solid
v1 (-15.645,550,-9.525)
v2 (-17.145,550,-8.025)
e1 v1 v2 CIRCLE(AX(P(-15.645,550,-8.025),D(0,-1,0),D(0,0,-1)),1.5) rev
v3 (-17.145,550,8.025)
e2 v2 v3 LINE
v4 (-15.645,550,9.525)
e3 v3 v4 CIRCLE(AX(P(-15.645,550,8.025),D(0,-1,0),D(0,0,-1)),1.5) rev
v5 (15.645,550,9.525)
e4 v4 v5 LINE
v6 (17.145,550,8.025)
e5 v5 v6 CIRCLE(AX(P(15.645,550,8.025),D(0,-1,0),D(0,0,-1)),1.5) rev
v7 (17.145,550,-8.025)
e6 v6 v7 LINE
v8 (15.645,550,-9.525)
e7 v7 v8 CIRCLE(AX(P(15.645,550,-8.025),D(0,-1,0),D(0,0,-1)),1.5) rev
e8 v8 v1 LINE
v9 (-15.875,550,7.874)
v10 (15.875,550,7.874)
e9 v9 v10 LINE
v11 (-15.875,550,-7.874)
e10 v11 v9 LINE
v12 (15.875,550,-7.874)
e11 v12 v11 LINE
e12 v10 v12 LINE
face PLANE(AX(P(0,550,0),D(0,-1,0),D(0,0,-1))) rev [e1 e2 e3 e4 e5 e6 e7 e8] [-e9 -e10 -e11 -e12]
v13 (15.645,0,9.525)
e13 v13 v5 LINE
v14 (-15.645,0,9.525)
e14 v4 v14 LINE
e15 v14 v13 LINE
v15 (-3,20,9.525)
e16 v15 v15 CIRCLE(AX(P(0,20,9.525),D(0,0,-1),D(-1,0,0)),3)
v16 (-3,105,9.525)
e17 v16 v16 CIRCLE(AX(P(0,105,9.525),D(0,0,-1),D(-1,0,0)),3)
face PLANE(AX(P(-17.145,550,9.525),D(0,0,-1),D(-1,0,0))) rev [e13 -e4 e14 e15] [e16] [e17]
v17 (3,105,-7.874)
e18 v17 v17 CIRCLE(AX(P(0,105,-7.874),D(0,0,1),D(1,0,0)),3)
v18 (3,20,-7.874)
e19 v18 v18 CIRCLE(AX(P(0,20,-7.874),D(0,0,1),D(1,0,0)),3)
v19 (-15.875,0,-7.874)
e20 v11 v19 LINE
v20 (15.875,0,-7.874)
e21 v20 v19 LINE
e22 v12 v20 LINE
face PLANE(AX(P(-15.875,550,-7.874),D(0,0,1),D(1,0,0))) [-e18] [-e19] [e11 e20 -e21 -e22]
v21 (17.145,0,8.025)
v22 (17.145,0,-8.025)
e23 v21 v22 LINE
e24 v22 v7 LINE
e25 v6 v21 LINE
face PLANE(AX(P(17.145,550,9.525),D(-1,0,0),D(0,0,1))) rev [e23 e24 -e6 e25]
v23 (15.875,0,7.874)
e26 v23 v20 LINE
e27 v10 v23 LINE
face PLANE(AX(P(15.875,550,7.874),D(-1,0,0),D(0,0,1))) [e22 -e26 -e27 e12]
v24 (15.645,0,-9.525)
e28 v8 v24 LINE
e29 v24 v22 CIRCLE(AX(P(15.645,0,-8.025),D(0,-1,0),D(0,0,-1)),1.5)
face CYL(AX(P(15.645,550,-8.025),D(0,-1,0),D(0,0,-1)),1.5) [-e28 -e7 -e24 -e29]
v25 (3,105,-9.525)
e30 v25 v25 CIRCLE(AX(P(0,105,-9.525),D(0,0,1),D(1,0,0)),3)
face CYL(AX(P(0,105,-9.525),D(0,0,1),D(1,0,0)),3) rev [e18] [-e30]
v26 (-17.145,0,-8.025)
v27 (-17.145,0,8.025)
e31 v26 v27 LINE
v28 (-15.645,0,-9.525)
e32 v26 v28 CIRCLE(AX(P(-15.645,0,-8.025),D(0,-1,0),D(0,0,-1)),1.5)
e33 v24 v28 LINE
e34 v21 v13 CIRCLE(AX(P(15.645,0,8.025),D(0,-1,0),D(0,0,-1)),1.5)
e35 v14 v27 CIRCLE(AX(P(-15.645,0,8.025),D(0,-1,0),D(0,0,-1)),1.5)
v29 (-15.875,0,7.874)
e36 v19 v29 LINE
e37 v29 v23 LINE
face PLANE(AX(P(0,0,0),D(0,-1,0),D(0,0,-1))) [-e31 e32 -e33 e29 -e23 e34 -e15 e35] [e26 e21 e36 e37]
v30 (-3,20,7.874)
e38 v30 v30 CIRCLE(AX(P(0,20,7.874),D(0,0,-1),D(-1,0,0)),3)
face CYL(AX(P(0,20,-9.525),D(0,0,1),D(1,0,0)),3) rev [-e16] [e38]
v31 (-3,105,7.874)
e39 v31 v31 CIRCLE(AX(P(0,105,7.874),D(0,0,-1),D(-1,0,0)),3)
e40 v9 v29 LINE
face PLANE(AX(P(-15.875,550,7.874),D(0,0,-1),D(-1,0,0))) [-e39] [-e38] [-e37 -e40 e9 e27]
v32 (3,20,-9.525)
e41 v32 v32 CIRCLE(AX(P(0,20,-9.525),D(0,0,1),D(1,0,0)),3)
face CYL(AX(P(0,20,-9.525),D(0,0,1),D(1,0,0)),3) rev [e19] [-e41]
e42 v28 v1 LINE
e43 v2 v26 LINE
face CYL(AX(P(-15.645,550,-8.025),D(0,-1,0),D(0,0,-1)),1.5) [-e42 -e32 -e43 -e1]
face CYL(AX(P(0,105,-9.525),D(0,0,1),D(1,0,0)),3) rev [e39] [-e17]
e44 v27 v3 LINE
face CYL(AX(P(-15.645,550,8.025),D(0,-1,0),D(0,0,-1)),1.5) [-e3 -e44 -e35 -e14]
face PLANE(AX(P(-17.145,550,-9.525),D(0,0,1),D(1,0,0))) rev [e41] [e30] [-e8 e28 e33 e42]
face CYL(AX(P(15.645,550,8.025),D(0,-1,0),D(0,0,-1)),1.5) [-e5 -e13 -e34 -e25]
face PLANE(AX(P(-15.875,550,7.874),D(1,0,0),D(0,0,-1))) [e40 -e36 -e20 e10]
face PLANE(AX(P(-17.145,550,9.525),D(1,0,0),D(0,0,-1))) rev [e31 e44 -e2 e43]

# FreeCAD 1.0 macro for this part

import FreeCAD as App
import Part
import Sketcher
from FreeCAD import Vector
Q = App.Units.Quantity


def edges_at(feature, points):
    """Names of the edges that pass closest to the given points."""
    edges = feature.Shape.Edges
    near = lambda p: min(range(len(edges)), key=lambda i: edges[i].distToShape(Part.Vertex(*p))[0])
    return sorted({f"Edge{near(p) + 1}" for p in points})

doc = App.newDocument("Part")
body = doc.addObject("PartDesign::Body", "Body")

# Sketch on XZ plane
sketch1 = doc.addObject("Sketcher::SketchObject", "Sketch")
body.addObject(sketch1)
sketch1.AttachmentSupport = (doc.XZ_Plane, [""])
sketch1.MapMode = "FlatFace"
sketch1.addGeometry(Part.LineSegment(Vector(-17.145, -9.525, 0), Vector(-17.145, 9.525, 0)), False)
sketch1.addGeometry(Part.LineSegment(Vector(-17.145, 9.525, 0), Vector(17.145, 9.525, 0)), False)
sketch1.addGeometry(Part.LineSegment(Vector(17.145, 9.525, 0), Vector(17.145, -9.525, 0)), False)
sketch1.addGeometry(Part.LineSegment(Vector(17.145, -9.525, 0), Vector(-17.145, -9.525, 0)), False)
sketch1.addGeometry(Part.LineSegment(Vector(15.875, 7.874, 0), Vector(-15.875, 7.874, 0)), False)
sketch1.addGeometry(Part.LineSegment(Vector(-15.875, 7.874, 0), Vector(-15.875, -7.874, 0)), False)
sketch1.addGeometry(Part.LineSegment(Vector(-15.875, -7.874, 0), Vector(15.875, -7.874, 0)), False)
sketch1.addGeometry(Part.LineSegment(Vector(15.875, -7.874, 0), Vector(15.875, 7.874, 0)), False)
sketch1.addConstraint(Sketcher.Constraint("Coincident", 0, 2, 1, 1))
sketch1.addConstraint(Sketcher.Constraint("Coincident", 1, 2, 2, 1))
sketch1.addConstraint(Sketcher.Constraint("Coincident", 2, 2, 3, 1))
sketch1.addConstraint(Sketcher.Constraint("Coincident", 3, 2, 0, 1))
sketch1.addConstraint(Sketcher.Constraint("Coincident", 4, 2, 5, 1))
sketch1.addConstraint(Sketcher.Constraint("Coincident", 5, 2, 6, 1))
sketch1.addConstraint(Sketcher.Constraint("Coincident", 6, 2, 7, 1))
sketch1.addConstraint(Sketcher.Constraint("Coincident", 7, 2, 4, 1))
sketch1.addConstraint(Sketcher.Constraint("Vertical", 0))
sketch1.addConstraint(Sketcher.Constraint("Horizontal", 1))
sketch1.addConstraint(Sketcher.Constraint("Vertical", 2))
sketch1.addConstraint(Sketcher.Constraint("Horizontal", 3))
sketch1.addConstraint(Sketcher.Constraint("Horizontal", 4))
sketch1.addConstraint(Sketcher.Constraint("Vertical", 5))
sketch1.addConstraint(Sketcher.Constraint("Horizontal", 6))
sketch1.addConstraint(Sketcher.Constraint("Vertical", 7))
sketch1.addConstraint(Sketcher.Constraint("Symmetric", 0, 2, 2, 2, -1, 1))
sketch1.addConstraint(Sketcher.Constraint("Symmetric", 4, 2, 6, 2, -1, 1))
sketch1.addConstraint(Sketcher.Constraint("DistanceX", 1, 1, 1, 2, Q("1.35 in")))
sketch1.addConstraint(Sketcher.Constraint("DistanceX", 4, 2, 4, 1, Q("1.25 in")))
sketch1.addConstraint(Sketcher.Constraint("DistanceY", 0, 1, 0, 2, Q("0.75 in")))
sketch1.addConstraint(Sketcher.Constraint("DistanceY", 5, 2, 5, 1, Q("0.62 in")))
pad1 = doc.addObject("PartDesign::Pad", "Pad")
body.addObject(pad1)
pad1.Profile = sketch1
pad1.Length = 550
pad1.Reversed = True
doc.recompute()

fillet = doc.addObject("PartDesign::Fillet", "Fillet")
body.addObject(fillet)
fillet.Base = (pad1, edges_at(pad1, [
    (17.145, 275, 9.525),
    (-17.145, 275, 9.525),
    (-17.145, 275, -9.525),
    (17.145, 275, -9.525),
]))
fillet.Radius = 1.5

# Sketch on XY plane
sketch2 = doc.addObject("Sketcher::SketchObject", "Sketch001")
body.addObject(sketch2)
sketch2.AttachmentSupport = (doc.XY_Plane, [""])
sketch2.MapMode = "FlatFace"
sketch2.AttachmentOffset = App.Placement(Vector(0, 0, 0.375 * 25.4), App.Rotation())
sketch2.addGeometry(Part.Circle(Vector(0, 105, 0), Vector(0, 0, 1), 3), False)
sketch2.addGeometry(Part.Circle(Vector(0, 20, 0), Vector(0, 0, 1), 3), False)
sketch2.addConstraint(Sketcher.Constraint("Equal", 0, 1))
sketch2.addConstraint(Sketcher.Constraint("PointOnObject", 0, 3, -2))
sketch2.addConstraint(Sketcher.Constraint("PointOnObject", 1, 3, -2))
sketch2.addConstraint(Sketcher.Constraint("Diameter", 0, 6.0))
sketch2.addConstraint(Sketcher.Constraint("DistanceY", -1, 1, 0, 3, 105.0))
sketch2.addConstraint(Sketcher.Constraint("DistanceY", -1, 1, 1, 3, 20.0))
pocket1 = doc.addObject("PartDesign::Pocket", "Pocket")
body.addObject(pocket1)
pocket1.Profile = sketch2
pocket1.Type = "ThroughAll"
pocket1.Midplane = True

doc.recompute()
